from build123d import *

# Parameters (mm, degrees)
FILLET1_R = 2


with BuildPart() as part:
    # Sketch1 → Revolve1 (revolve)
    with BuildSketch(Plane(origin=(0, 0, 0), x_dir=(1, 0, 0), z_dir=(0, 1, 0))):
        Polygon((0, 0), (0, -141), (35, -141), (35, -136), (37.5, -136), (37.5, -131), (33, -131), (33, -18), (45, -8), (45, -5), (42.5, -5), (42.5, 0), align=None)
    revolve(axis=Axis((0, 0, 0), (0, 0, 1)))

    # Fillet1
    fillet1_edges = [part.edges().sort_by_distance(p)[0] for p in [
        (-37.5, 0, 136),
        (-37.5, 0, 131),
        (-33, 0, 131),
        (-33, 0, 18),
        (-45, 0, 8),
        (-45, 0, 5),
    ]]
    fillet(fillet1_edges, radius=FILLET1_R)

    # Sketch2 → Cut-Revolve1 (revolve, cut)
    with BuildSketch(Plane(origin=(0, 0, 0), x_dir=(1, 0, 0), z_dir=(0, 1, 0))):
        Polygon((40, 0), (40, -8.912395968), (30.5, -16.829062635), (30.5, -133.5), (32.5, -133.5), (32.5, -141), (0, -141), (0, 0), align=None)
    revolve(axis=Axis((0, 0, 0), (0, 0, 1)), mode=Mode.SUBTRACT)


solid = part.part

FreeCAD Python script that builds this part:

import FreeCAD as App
import Part
import Sketcher


def edges_at(feature, points):
    """Names of the edges that pass closest to the given points."""
    edges = feature.Shape.Edges
    near = lambda p: min(range(len(edges)), key=lambda i: edges[i].distToShape(Part.Vertex(*p))[0])
    return sorted({f"Edge{near(p) + 1}" for p in points})

doc = App.newDocument("Part")
body = doc.addObject("PartDesign::Body", "Body")

sketch1 = body.newObject("Sketcher::SketchObject", "Sketch")
sketch1.AttachmentSupport = (doc.getObject("XZ_Plane"), [""])
sketch1.MapMode = "FlatFace"
sketch1.addGeometry([
    Part.LineSegment(App.Vector(0, 0, 0), App.Vector(0, 141, 0)),
    Part.LineSegment(App.Vector(0, 141, 0), App.Vector(35, 141, 0)),
    Part.LineSegment(App.Vector(35, 141, 0), App.Vector(35, 136, 0)),
    Part.LineSegment(App.Vector(35, 136, 0), App.Vector(37.5, 136, 0)),
    Part.LineSegment(App.Vector(37.5, 136, 0), App.Vector(37.5, 131, 0)),
    Part.LineSegment(App.Vector(37.5, 131, 0), App.Vector(33, 131, 0)),
    Part.LineSegment(App.Vector(33, 131, 0), App.Vector(33, 18, 0)),
    Part.LineSegment(App.Vector(33, 18, 0), App.Vector(45, 8, 0)),
    Part.LineSegment(App.Vector(45, 8, 0), App.Vector(45, 5, 0)),
    Part.LineSegment(App.Vector(45, 5, 0), App.Vector(42.5, 5, 0)),
    Part.LineSegment(App.Vector(42.5, 5, 0), App.Vector(42.5, 0, 0)),
    Part.LineSegment(App.Vector(42.5, 0, 0), App.Vector(0, 0, 0)),
], False)
sketch1.addConstraint([
    Sketcher.Constraint("Coincident", 0, 2, 1, 1),
    Sketcher.Constraint("Coincident", 1, 2, 2, 1),
    Sketcher.Constraint("Coincident", 2, 2, 3, 1),
    Sketcher.Constraint("Coincident", 3, 2, 4, 1),
    Sketcher.Constraint("Coincident", 4, 2, 5, 1),
    Sketcher.Constraint("Coincident", 5, 2, 6, 1),
    Sketcher.Constraint("Coincident", 6, 2, 7, 1),
    Sketcher.Constraint("Coincident", 7, 2, 8, 1),
    Sketcher.Constraint("Coincident", 8, 2, 9, 1),
    Sketcher.Constraint("Coincident", 9, 2, 10, 1),
    Sketcher.Constraint("Coincident", 10, 2, 11, 1),
    Sketcher.Constraint("Coincident", 11, 2, 0, 1),
    Sketcher.Constraint("Vertical", 0),
    Sketcher.Constraint("Horizontal", 1),
    Sketcher.Constraint("Vertical", 2),
    Sketcher.Constraint("Horizontal", 3),
    Sketcher.Constraint("Vertical", 4),
    Sketcher.Constraint("Horizontal", 5),
    Sketcher.Constraint("Vertical", 6),
    Sketcher.Constraint("Vertical", 8),
    Sketcher.Constraint("Horizontal", 9),
    Sketcher.Constraint("Vertical", 10),
    Sketcher.Constraint("Horizontal", 11),
    Sketcher.Constraint("Coincident", 11, 2, -1, 1),
    Sketcher.Constraint("Equal", 3, 9),
    Sketcher.Constraint("Equal", 2, 4),
    Sketcher.Constraint("Equal", 4, 10),
    Sketcher.Constraint("DistanceX", 1, 1, 1, 2, 35.0),
    Sketcher.Constraint("DistanceY", 0, 1, 0, 2, 141.0),
    Sketcher.Constraint("DistanceY", 2, 2, 2, 1, 5.0),
    Sketcher.Constraint("DistanceY", 6, 2, 6, 1, 113.0),
    Sketcher.Constraint("DistanceY", 8, 2, 8, 1, 3.0),
    Sketcher.Constraint("DistanceX", 3, 1, 3, 2, 2.5),
    Sketcher.Constraint("DistanceX", 5, 2, 5, 1, 4.5),
    Sketcher.Constraint("DistanceX", 11, 2, 11, 1, 42.5),
])
revolution = body.newObject("PartDesign::Revolution", "Revolution")
revolution.Profile = sketch1
revolution.ReferenceAxis = (sketch1, ["V_Axis"])
revolution.Angle = 360
doc.recompute()

fillet = body.newObject("PartDesign::Fillet", "Fillet")
fillet.Base = (revolution, edges_at(revolution, [
    (-37.5, 0, 136),
    (-37.5, 0, 131),
    (-33, 0, 131),
    (-33, 0, 18),
    (-45, 0, 8),
    (-45, 0, 5),
]))
fillet.Radius = 2

sketch2 = body.newObject("Sketcher::SketchObject", "Sketch001")
sketch2.AttachmentSupport = (doc.getObject("XZ_Plane"), [""])
sketch2.MapMode = "FlatFace"
sketch2.addGeometry([
    Part.LineSegment(App.Vector(40, 8.9, 0), App.Vector(40, 0, 0)),
    Part.LineSegment(App.Vector(40, 0, 0), App.Vector(0, 0, 0)),
    Part.LineSegment(App.Vector(0, 0, 0), App.Vector(0, 141, 0)),
    Part.LineSegment(App.Vector(0, 141, 0), App.Vector(32.5, 141, 0)),
    Part.LineSegment(App.Vector(32.5, 141, 0), App.Vector(32.5, 133.5, 0)),
    Part.LineSegment(App.Vector(32.5, 133.5, 0), App.Vector(30.5, 133.5, 0)),
    Part.LineSegment(App.Vector(30.5, 133.5, 0), App.Vector(30.5, 16.8, 0)),
    Part.LineSegment(App.Vector(30.5, 16.8, 0), App.Vector(40, 8.9, 0)),
], False)
sketch2.addConstraint([
    Sketcher.Constraint("Coincident", 0, 2, 1, 1),
    Sketcher.Constraint("Coincident", 1, 2, 2, 1),
    Sketcher.Constraint("Coincident", 2, 2, 3, 1),
    Sketcher.Constraint("Coincident", 3, 2, 4, 1),
    Sketcher.Constraint("Coincident", 4, 2, 5, 1),
    Sketcher.Constraint("Coincident", 5, 2, 6, 1),
    Sketcher.Constraint("Coincident", 6, 2, 7, 1),
    Sketcher.Constraint("Coincident", 7, 2, 0, 1),
    Sketcher.Constraint("Vertical", 0),
    Sketcher.Constraint("Horizontal", 1),
    Sketcher.Constraint("Vertical", 2),
    Sketcher.Constraint("Horizontal", 3),
    Sketcher.Constraint("Vertical", 4),
    Sketcher.Constraint("Horizontal", 5),
    Sketcher.Constraint("Vertical", 6),
    Sketcher.Constraint("Coincident", 1, 2, -1, 1),
    Sketcher.Constraint("DistanceX", 1, 2, 1, 1, 40.0),
    Sketcher.Constraint("DistanceX", 5, 2, 5, 1, 2.0),
    Sketcher.Constraint("DistanceY", 2, 1, 2, 2, 141.0),
    Sketcher.Constraint("DistanceX", 3, 1, 3, 2, 32.5),
    Sketcher.Constraint("DistanceY", 4, 2, 4, 1, 7.5),
    Sketcher.Constraint("Distance", 7, 12.366229),
    Sketcher.Constraint("DistanceY", 0, 2, 0, 1, 8.912396),
])
groove = body.newObject("PartDesign::Groove", "Groove")
groove.Profile = sketch2
groove.ReferenceAxis = (sketch2, ["V_Axis"])
groove.Angle = 360

doc.recompute()
